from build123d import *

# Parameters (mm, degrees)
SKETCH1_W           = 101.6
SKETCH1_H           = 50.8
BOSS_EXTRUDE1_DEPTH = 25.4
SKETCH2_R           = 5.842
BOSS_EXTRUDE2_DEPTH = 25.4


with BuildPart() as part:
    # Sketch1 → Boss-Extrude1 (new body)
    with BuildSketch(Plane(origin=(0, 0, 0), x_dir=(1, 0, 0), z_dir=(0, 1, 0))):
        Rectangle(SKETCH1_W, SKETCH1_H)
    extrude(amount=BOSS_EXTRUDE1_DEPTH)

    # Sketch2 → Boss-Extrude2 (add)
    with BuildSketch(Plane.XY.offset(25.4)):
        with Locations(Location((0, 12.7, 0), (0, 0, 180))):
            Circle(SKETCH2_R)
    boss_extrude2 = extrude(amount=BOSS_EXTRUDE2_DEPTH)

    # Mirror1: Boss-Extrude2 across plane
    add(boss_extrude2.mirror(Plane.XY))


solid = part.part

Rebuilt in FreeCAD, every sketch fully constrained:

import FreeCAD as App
import Part
import Sketcher

V = App.Vector
Q = App.Units.Quantity


def add_polygon(sketch, points):
    """Adds a closed chain of lines whose ends are joined by coincident constraints."""
    first, n = sketch.GeometryCount, len(points)
    for a, b in zip(points, points[1:] + points[:1]):
        sketch.addGeometry(Part.LineSegment(App.Vector(*a, 0), App.Vector(*b, 0)), False)
    for i in range(n):
        sketch.addConstraint(Sketcher.Constraint("Coincident", first + i, 2, first + (i + 1) % n, 1))

doc = App.newDocument("Part")
params = doc.addObject("Spreadsheet::Sheet", "Params")
for row, (alias, value) in enumerate([
    ("sketch1_width", "4 in"),
    ("sketch1_height", "2 in"),
    ("pad1_length", "1 in"),
    ("sketch2_diameter", "0.46 in"),
    ("pad2_length", "1 in"),
], start=1):
    params.set(f"A{row}", alias)
    params.set(f"B{row}", "=" + value)
    params.setAlias(f"B{row}", alias)

body = doc.addObject("PartDesign::Body", "Body")

# Sketch on XZ plane
sketch1 = body.newObject("Sketcher::SketchObject", "Sketch")
sketch1.AttachmentSupport = (doc.getObject("XZ_Plane"), [""])
sketch1.MapMode = "FlatFace"
add_polygon(sketch1, [(-50.8, -25.4), (-50.8, 25.4), (50.8, 25.4), (50.8, -25.4)])  # lines 0-3
sketch1.addConstraint([
    Sketcher.Constraint("Vertical", 0),
    Sketcher.Constraint("Horizontal", 1),
    Sketcher.Constraint("Vertical", 2),
    Sketcher.Constraint("Horizontal", 3),
    Sketcher.Constraint("Symmetric", 0, 2, 2, 2, -1, 1),
    Sketcher.Constraint("DistanceX", 1, 1, 1, 2, Q("4 in")),
    Sketcher.Constraint("DistanceY", 0, 1, 0, 2, Q("2 in")),
])
sketch1.setExpression("Constraints[9]", "Params.sketch1_width")
sketch1.setExpression("Constraints[10]", "Params.sketch1_height")
pad1 = body.newObject("PartDesign::Pad", "Pad")
pad1.Profile = sketch1
pad1.setExpression("Length", "Params.pad1_length")
pad1.Reversed = True

# Sketch on XY plane
sketch2 = body.newObject("Sketcher::SketchObject", "Sketch001")
sketch2.AttachmentSupport = (doc.getObject("XY_Plane"), [""])
sketch2.MapMode = "FlatFace"
sketch2.AttachmentOffset = App.Placement(V(0, 0, 1 * 25.4), App.Rotation())
sketch2.addGeometry(Part.Circle(V(0, 12.7, 0), V(0, 0, 1), 5.842), False)
sketch2.addConstraint([
    Sketcher.Constraint("PointOnObject", 0, 3, -2),
    Sketcher.Constraint("Diameter", 0, Q("0.46 in")),
    Sketcher.Constraint("DistanceY", -1, 1, 0, 3, Q("0.5 in")),
])
sketch2.setExpression("Constraints[1]", "Params.sketch2_diameter")
pad2 = body.newObject("PartDesign::Pad", "Pad001")
pad2.Profile = sketch2
pad2.setExpression("Length", "Params.pad2_length")
doc.recompute()

mirrored = body.newObject("PartDesign::Mirrored", "Mirrored")
mirrored.Originals = [pad2]
mirrored.MirrorPlane = (doc.getObject("XY_Plane"), [""])
body.Tip = mirrored

doc.recompute()
